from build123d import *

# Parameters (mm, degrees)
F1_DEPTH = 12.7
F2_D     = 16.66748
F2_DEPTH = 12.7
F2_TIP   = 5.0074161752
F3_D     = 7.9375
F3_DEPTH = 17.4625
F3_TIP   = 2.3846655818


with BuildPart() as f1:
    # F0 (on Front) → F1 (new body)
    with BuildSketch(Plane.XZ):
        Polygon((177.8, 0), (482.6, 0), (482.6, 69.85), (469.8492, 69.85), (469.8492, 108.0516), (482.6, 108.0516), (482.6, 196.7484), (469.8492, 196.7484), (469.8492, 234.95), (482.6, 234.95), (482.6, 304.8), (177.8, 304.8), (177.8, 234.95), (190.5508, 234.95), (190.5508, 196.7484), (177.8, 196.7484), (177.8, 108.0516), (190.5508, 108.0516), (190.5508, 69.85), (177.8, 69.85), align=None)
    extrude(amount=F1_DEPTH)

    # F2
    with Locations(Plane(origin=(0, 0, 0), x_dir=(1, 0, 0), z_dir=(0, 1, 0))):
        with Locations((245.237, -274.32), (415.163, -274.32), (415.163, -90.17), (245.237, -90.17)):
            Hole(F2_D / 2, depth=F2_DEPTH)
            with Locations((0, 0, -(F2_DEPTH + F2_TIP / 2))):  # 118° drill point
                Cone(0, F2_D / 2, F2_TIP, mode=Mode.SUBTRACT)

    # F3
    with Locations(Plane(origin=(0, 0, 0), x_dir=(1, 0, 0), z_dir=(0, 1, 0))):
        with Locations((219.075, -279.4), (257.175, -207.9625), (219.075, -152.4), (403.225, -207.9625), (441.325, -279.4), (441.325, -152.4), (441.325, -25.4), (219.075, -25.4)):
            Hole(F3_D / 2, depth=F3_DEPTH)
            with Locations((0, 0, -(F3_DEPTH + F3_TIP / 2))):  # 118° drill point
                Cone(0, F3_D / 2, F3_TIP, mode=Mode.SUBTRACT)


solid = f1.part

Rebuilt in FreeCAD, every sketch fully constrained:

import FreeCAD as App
import Part
import Sketcher

V = App.Vector
Q = App.Units.Quantity

doc = App.newDocument("Part")
body = doc.addObject("PartDesign::Body", "Body")

# Sketch on XZ plane
sketch1 = doc.addObject("Sketcher::SketchObject", "Sketch")
body.addObject(sketch1)
sketch1.AttachmentSupport = (doc.XZ_Plane, [""])
sketch1.MapMode = "FlatFace"
sketch1.addGeometry(Part.LineSegment(V(178, 0, 0), V(483, 0, 0)), False)
sketch1.addGeometry(Part.LineSegment(V(483, 0, 0), V(483, 70, 0)), False)
sketch1.addGeometry(Part.LineSegment(V(483, 70, 0), V(470, 70, 0)), False)
sketch1.addGeometry(Part.LineSegment(V(470, 70, 0), V(470, 108, 0)), False)
sketch1.addGeometry(Part.LineSegment(V(470, 108, 0), V(483, 108, 0)), False)
sketch1.addGeometry(Part.LineSegment(V(483, 108, 0), V(483, 197, 0)), False)
sketch1.addGeometry(Part.LineSegment(V(483, 197, 0), V(470, 197, 0)), False)
sketch1.addGeometry(Part.LineSegment(V(470, 197, 0), V(470, 235, 0)), False)
sketch1.addGeometry(Part.LineSegment(V(470, 235, 0), V(483, 235, 0)), False)
sketch1.addGeometry(Part.LineSegment(V(483, 235, 0), V(483, 305, 0)), False)
sketch1.addGeometry(Part.LineSegment(V(483, 305, 0), V(178, 305, 0)), False)
sketch1.addGeometry(Part.LineSegment(V(178, 305, 0), V(178, 235, 0)), False)
sketch1.addGeometry(Part.LineSegment(V(178, 235, 0), V(191, 235, 0)), False)
sketch1.addGeometry(Part.LineSegment(V(191, 235, 0), V(191, 197, 0)), False)
sketch1.addGeometry(Part.LineSegment(V(191, 197, 0), V(178, 197, 0)), False)
sketch1.addGeometry(Part.LineSegment(V(178, 197, 0), V(178, 108, 0)), False)
sketch1.addGeometry(Part.LineSegment(V(178, 108, 0), V(191, 108, 0)), False)
sketch1.addGeometry(Part.LineSegment(V(191, 108, 0), V(191, 70, 0)), False)
sketch1.addGeometry(Part.LineSegment(V(191, 70, 0), V(178, 70, 0)), False)
sketch1.addGeometry(Part.LineSegment(V(178, 70, 0), V(178, 0, 0)), False)
sketch1.addConstraint(Sketcher.Constraint("Coincident", 0, 2, 1, 1))
sketch1.addConstraint(Sketcher.Constraint("Coincident", 1, 2, 2, 1))
sketch1.addConstraint(Sketcher.Constraint("Coincident", 2, 2, 3, 1))
sketch1.addConstraint(Sketcher.Constraint("Coincident", 3, 2, 4, 1))
sketch1.addConstraint(Sketcher.Constraint("Coincident", 4, 2, 5, 1))
sketch1.addConstraint(Sketcher.Constraint("Coincident", 5, 2, 6, 1))
sketch1.addConstraint(Sketcher.Constraint("Coincident", 6, 2, 7, 1))
sketch1.addConstraint(Sketcher.Constraint("Coincident", 7, 2, 8, 1))
sketch1.addConstraint(Sketcher.Constraint("Coincident", 8, 2, 9, 1))
sketch1.addConstraint(Sketcher.Constraint("Coincident", 9, 2, 10, 1))
sketch1.addConstraint(Sketcher.Constraint("Coincident", 10, 2, 11, 1))
sketch1.addConstraint(Sketcher.Constraint("Coincident", 11, 2, 12, 1))
sketch1.addConstraint(Sketcher.Constraint("Coincident", 12, 2, 13, 1))
sketch1.addConstraint(Sketcher.Constraint("Coincident", 13, 2, 14, 1))
sketch1.addConstraint(Sketcher.Constraint("Coincident", 14, 2, 15, 1))
sketch1.addConstraint(Sketcher.Constraint("Coincident", 15, 2, 16, 1))
sketch1.addConstraint(Sketcher.Constraint("Coincident", 16, 2, 17, 1))
sketch1.addConstraint(Sketcher.Constraint("Coincident", 17, 2, 18, 1))
sketch1.addConstraint(Sketcher.Constraint("Coincident", 18, 2, 19, 1))
sketch1.addConstraint(Sketcher.Constraint("Coincident", 19, 2, 0, 1))
sketch1.addConstraint(Sketcher.Constraint("Horizontal", 0))
sketch1.addConstraint(Sketcher.Constraint("Vertical", 1))
sketch1.addConstraint(Sketcher.Constraint("Horizontal", 2))
sketch1.addConstraint(Sketcher.Constraint("Vertical", 3))
sketch1.addConstraint(Sketcher.Constraint("Horizontal", 4))
sketch1.addConstraint(Sketcher.Constraint("Vertical", 5))
sketch1.addConstraint(Sketcher.Constraint("Horizontal", 6))
sketch1.addConstraint(Sketcher.Constraint("Vertical", 7))
sketch1.addConstraint(Sketcher.Constraint("Horizontal", 8))
sketch1.addConstraint(Sketcher.Constraint("Vertical", 9))
sketch1.addConstraint(Sketcher.Constraint("Horizontal", 10))
sketch1.addConstraint(Sketcher.Constraint("Vertical", 11))
sketch1.addConstraint(Sketcher.Constraint("Horizontal", 12))
sketch1.addConstraint(Sketcher.Constraint("Vertical", 13))
sketch1.addConstraint(Sketcher.Constraint("Horizontal", 14))
sketch1.addConstraint(Sketcher.Constraint("Vertical", 15))
sketch1.addConstraint(Sketcher.Constraint("Horizontal", 16))
sketch1.addConstraint(Sketcher.Constraint("Vertical", 17))
sketch1.addConstraint(Sketcher.Constraint("Horizontal", 18))
sketch1.addConstraint(Sketcher.Constraint("Vertical", 19))
sketch1.addConstraint(Sketcher.Constraint("PointOnObject", 0, 2, -1))
sketch1.addConstraint(Sketcher.Constraint("Horizontal", 8, 2, 11, 2))
sketch1.addConstraint(Sketcher.Constraint("Horizontal", 6, 2, 13, 2))
sketch1.addConstraint(Sketcher.Constraint("Horizontal", 4, 2, 15, 2))
sketch1.addConstraint(Sketcher.Constraint("Horizontal", 2, 2, 17, 2))
sketch1.addConstraint(Sketcher.Constraint("Vertical", 1, 2, 4, 2))
sketch1.addConstraint(Sketcher.Constraint("Vertical", 3, 2, 6, 2))
sketch1.addConstraint(Sketcher.Constraint("Vertical", 5, 2, 8, 2))
sketch1.addConstraint(Sketcher.Constraint("Vertical", 11, 2, 14, 2))
sketch1.addConstraint(Sketcher.Constraint("Vertical", 13, 2, 16, 2))
sketch1.addConstraint(Sketcher.Constraint("Vertical", 15, 2, 18, 2))
sketch1.addConstraint(Sketcher.Constraint("Equal", 8, 12))
sketch1.addConstraint(Sketcher.Constraint("Equal", 3, 7))
sketch1.addConstraint(Sketcher.Constraint("Equal", 1, 9))
sketch1.addConstraint(Sketcher.Constraint("DistanceX", 0, 1, 0, 2, Q("12 in")))
sketch1.addConstraint(Sketcher.Constraint("DistanceX", -1, 1, 0, 2, Q("19 in")))
sketch1.addConstraint(Sketcher.Constraint("DistanceY", -1, 1, 9, 2, Q("12 in")))
sketch1.addConstraint(Sketcher.Constraint("DistanceY", 1, 1, 1, 2, Q("2.75 in")))
sketch1.addConstraint(Sketcher.Constraint("DistanceX", 2, 2, 2, 1, Q("0.502 in")))
sketch1.addConstraint(Sketcher.Constraint("DistanceY", 3, 1, 3, 2, Q("1.504 in")))
pad1 = doc.addObject("PartDesign::Pad", "Pad")
body.addObject(pad1)
pad1.Profile = sketch1
pad1.Length = Q("0.5 in")

# Sketch on XZ plane
sketch2 = doc.addObject("Sketcher::SketchObject", "Sketch001")
body.addObject(sketch2)
sketch2.AttachmentSupport = (doc.XZ_Plane, [""])
sketch2.MapMode = "FlatFace"
sketch2.addGeometry(Part.Circle(V(245, 274, 0), V(0, 0, 1), 8), False)
sketch2.addGeometry(Part.Circle(V(415, 274, 0), V(0, 0, 1), 8), False)
sketch2.addGeometry(Part.Circle(V(415, 90, 0), V(0, 0, 1), 8), False)
sketch2.addGeometry(Part.Circle(V(245, 90, 0), V(0, 0, 1), 8), False)
sketch2.addConstraint(Sketcher.Constraint("Equal", 0, 1))
sketch2.addConstraint(Sketcher.Constraint("Equal", 1, 2))
sketch2.addConstraint(Sketcher.Constraint("Equal", 2, 3))
sketch2.addConstraint(Sketcher.Constraint("Horizontal", 0, 3, 1, 3))
sketch2.addConstraint(Sketcher.Constraint("Horizontal", 2, 3, 3, 3))
sketch2.addConstraint(Sketcher.Constraint("Vertical", 1, 3, 2, 3))
sketch2.addConstraint(Sketcher.Constraint("Vertical", 0, 3, 3, 3))
sketch2.addConstraint(Sketcher.Constraint("Diameter", 0, Q("0.6562 in")))
sketch2.addConstraint(Sketcher.Constraint("DistanceY", -1, 1, 0, 3, Q("10.8 in")))
sketch2.addConstraint(Sketcher.Constraint("DistanceY", -1, 1, 2, 3, Q("3.55 in")))
sketch2.addConstraint(Sketcher.Constraint("DistanceX", 0, 3, 1, 3, Q("6.69 in")))
sketch2.addConstraint(Sketcher.Constraint("DistanceX", -1, 1, 0, 3, Q("9.655 in")))
doc.recompute()
hole = doc.addObject("PartDesign::Hole", "Hole")
body.addObject(hole)
hole.Profile = sketch2
hole.ThreadType = "None"
hole.Diameter = Q("0.6562 in")
hole.DepthType = "Dimension"
hole.Depth = Q("0.5 in")
hole.DrillPoint = "Angled"
hole.DrillPointAngle = 118
hole.Reversed = True

# Sketch on XZ plane
sketch3 = doc.addObject("Sketcher::SketchObject", "Sketch002")
body.addObject(sketch3)
sketch3.AttachmentSupport = (doc.XZ_Plane, [""])
sketch3.MapMode = "FlatFace"
sketch3.addGeometry(Part.Circle(V(219.1, 279.4, 0), V(0, 0, 1), 4), False)
sketch3.addGeometry(Part.Circle(V(257.2, 208, 0), V(0, 0, 1), 4), False)
sketch3.addGeometry(Part.Circle(V(219.1, 152.4, 0), V(0, 0, 1), 4), False)
sketch3.addGeometry(Part.Circle(V(403.2, 208, 0), V(0, 0, 1), 4), False)
sketch3.addGeometry(Part.Circle(V(441.3, 279.4, 0), V(0, 0, 1), 4), False)
sketch3.addGeometry(Part.Circle(V(441.3, 152.4, 0), V(0, 0, 1), 4), False)
sketch3.addGeometry(Part.Circle(V(441.3, 25.4, 0), V(0, 0, 1), 4), False)
sketch3.addGeometry(Part.Circle(V(219.1, 25.4, 0), V(0, 0, 1), 4), False)
sketch3.addConstraint(Sketcher.Constraint("Equal", 0, 1))
sketch3.addConstraint(Sketcher.Constraint("Equal", 1, 2))
sketch3.addConstraint(Sketcher.Constraint("Equal", 2, 3))
sketch3.addConstraint(Sketcher.Constraint("Equal", 3, 4))
sketch3.addConstraint(Sketcher.Constraint("Equal", 4, 5))
sketch3.addConstraint(Sketcher.Constraint("Equal", 5, 6))
sketch3.addConstraint(Sketcher.Constraint("Equal", 6, 7))
sketch3.addConstraint(Sketcher.Constraint("Horizontal", 1, 3, 3, 3))
sketch3.addConstraint(Sketcher.Constraint("Horizontal", 0, 3, 4, 3))
sketch3.addConstraint(Sketcher.Constraint("Horizontal", 2, 3, 5, 3))
sketch3.addConstraint(Sketcher.Constraint("Horizontal", 6, 3, 7, 3))
sketch3.addConstraint(Sketcher.Constraint("Vertical", 0, 3, 2, 3))
sketch3.addConstraint(Sketcher.Constraint("Vertical", 4, 3, 5, 3))
sketch3.addConstraint(Sketcher.Constraint("Vertical", 5, 3, 6, 3))
sketch3.addConstraint(Sketcher.Constraint("Vertical", 2, 3, 7, 3))
sketch3.addConstraint(Sketcher.Constraint("Diameter", 0, Q("0.3125 in")))
sketch3.addConstraint(Sketcher.Constraint("DistanceY", -1, 1, 0, 3, Q("11 in")))
sketch3.addConstraint(Sketcher.Constraint("DistanceY", -1, 1, 2, 3, Q("6 in")))
sketch3.addConstraint(Sketcher.Constraint("DistanceY", -1, 1, 6, 3, Q("1 in")))
sketch3.addConstraint(Sketcher.Constraint("DistanceX", 0, 3, 1, 3, Q("1.5 in")))
sketch3.addConstraint(Sketcher.Constraint("DistanceX", 3, 3, 4, 3, Q("1.5 in")))
sketch3.addConstraint(Sketcher.Constraint("DistanceX", 1, 3, 3, 3, Q("5.75 in")))
sketch3.addConstraint(Sketcher.Constraint("DistanceX", -1, 1, 0, 3, Q("8.625 in")))
sketch3.addConstraint(Sketcher.Constraint("DistanceY", -1, 1, 1, 3, Q("8.1875 in")))
doc.recompute()
hole2 = doc.addObject("PartDesign::Hole", "Hole001")
body.addObject(hole2)
hole2.Profile = sketch3
hole2.ThreadType = "None"
hole2.Diameter = Q("0.3125 in")
hole2.DepthType = "Dimension"
hole2.Depth = Q("0.6875 in")
hole2.DrillPoint = "Angled"
hole2.DrillPointAngle = 118
hole2.Reversed = True

doc.recompute()
